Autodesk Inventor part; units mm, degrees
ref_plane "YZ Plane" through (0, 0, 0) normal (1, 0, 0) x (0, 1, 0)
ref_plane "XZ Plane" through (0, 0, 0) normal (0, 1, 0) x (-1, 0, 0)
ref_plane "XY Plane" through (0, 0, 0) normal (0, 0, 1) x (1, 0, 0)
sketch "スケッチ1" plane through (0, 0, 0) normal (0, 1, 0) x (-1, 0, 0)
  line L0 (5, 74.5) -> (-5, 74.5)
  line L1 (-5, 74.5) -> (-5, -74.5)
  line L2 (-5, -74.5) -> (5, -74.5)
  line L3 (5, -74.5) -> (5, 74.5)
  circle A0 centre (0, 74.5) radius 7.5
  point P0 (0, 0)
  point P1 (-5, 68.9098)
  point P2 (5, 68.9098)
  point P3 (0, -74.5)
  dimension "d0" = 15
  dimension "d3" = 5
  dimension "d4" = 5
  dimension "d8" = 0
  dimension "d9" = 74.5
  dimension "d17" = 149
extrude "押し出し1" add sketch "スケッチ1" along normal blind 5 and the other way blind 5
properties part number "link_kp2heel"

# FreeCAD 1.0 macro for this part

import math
import FreeCAD as App
import Part
import Sketcher

V = App.Vector
Q = App.Units.Quantity

doc = App.newDocument("Part")
params = doc.addObject("Spreadsheet::Sheet", "Params")
for row, (alias, value) in enumerate([
    ("sketch1_radius", "7.5 mm"),
    ("pad1_length", "5 mm"),
    ("pad1_length2", "5 mm"),
], start=1):
    params.set(f"A{row}", alias)
    params.set(f"B{row}", "=" + value)
    params.setAlias(f"B{row}", alias)

body = doc.addObject("PartDesign::Body", "Body")

sketch1 = body.newObject("Sketcher::SketchObject", "Sketch")
sketch1.AttachmentSupport = (doc.getObject("XZ_Plane"), [""])
sketch1.MapMode = "FlatFace"
sketch1.addGeometry(Part.LineSegment(V(5, 68.90983, 0), V(5, -74.5, 0)), False)
sketch1.addGeometry(Part.LineSegment(V(5, -74.5, 0), V(-5, -74.5, 0)), False)
sketch1.addGeometry(Part.LineSegment(V(-5, -74.5, 0), V(-5, 68.90983, 0)), False)
sketch1.addGeometry(Part.ArcOfCircle(Part.Circle(V(0, 74.5, 0), V(0, 0, 1), 7.5), math.radians(-48.189685), math.radians(228.189685)), False)
sketch1.addConstraint(Sketcher.Constraint("Coincident", 0, 2, 1, 1))
sketch1.addConstraint(Sketcher.Constraint("Coincident", 1, 2, 2, 1))
sketch1.addConstraint(Sketcher.Constraint("Coincident", 2, 2, 3, 2))
sketch1.addConstraint(Sketcher.Constraint("Coincident", 3, 1, 0, 1))
sketch1.addConstraint(Sketcher.Constraint("Vertical", 0))
sketch1.addConstraint(Sketcher.Constraint("Horizontal", 1))
sketch1.addConstraint(Sketcher.Constraint("Vertical", 2))
sketch1.addConstraint(Sketcher.Constraint("Symmetric", 2, 2, 3, 1, -2))
sketch1.addConstraint(Sketcher.Constraint("Radius", 3, Q("7.5 mm")))
sketch1.addConstraint(Sketcher.Constraint("DistanceX", -1, 1, 0, 2, Q("5 mm")))
sketch1.addConstraint(Sketcher.Constraint("DistanceY", 0, 2, 3, 3, Q("149 mm")))
sketch1.addConstraint(Sketcher.Constraint("DistanceY", -1, 1, 3, 3, Q("74.5 mm")))
sketch1.setExpression("Constraints[8]", "Params.sketch1_radius")
pad1 = body.newObject("PartDesign::Pad", "Pad")
pad1.Profile = sketch1
pad1.Type = "TwoLengths"
pad1.setExpression("Length", "Params.pad1_length")
pad1.setExpression("Length2", "Params.pad1_length2")
pad1.Reversed = True

doc.recompute()
